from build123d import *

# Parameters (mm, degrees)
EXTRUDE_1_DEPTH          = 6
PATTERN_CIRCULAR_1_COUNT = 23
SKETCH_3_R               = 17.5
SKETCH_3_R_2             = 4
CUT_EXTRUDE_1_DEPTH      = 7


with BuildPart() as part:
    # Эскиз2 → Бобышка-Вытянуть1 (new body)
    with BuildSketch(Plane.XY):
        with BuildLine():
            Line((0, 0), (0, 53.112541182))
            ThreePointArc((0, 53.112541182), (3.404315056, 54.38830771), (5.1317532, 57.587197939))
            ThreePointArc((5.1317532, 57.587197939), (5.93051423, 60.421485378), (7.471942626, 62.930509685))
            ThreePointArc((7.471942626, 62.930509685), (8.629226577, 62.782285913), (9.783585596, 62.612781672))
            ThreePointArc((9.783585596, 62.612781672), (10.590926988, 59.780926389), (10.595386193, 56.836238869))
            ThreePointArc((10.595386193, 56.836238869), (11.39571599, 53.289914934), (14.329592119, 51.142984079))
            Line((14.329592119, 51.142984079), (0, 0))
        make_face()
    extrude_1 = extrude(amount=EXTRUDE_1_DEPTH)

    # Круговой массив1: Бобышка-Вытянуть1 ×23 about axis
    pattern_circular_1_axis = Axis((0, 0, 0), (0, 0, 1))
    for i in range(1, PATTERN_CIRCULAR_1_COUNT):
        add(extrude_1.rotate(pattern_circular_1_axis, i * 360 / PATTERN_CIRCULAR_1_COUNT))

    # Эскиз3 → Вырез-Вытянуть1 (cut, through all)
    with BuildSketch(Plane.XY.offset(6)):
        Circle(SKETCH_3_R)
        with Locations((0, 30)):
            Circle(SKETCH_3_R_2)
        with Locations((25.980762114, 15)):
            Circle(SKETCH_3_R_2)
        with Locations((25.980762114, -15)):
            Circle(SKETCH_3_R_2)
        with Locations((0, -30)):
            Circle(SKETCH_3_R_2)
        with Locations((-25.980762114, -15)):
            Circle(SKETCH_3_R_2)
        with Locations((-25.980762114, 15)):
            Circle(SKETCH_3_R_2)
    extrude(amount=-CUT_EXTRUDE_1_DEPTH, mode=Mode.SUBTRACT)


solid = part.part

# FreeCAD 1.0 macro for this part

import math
import FreeCAD as App
import Part
import Sketcher
from FreeCAD import Vector
Q = App.Units.Quantity

doc = App.newDocument("Part")
params = doc.addObject("Spreadsheet::Sheet", "Params")
for row, (alias, value) in enumerate([
    ("sketch1_radius", "5.18 mm"),
    ("pad1_length", "6 mm"),
    ("sketch2_diameter", "35 mm"),
    ("sketch2_diameter2", "8 mm"),
], start=1):
    params.set(f"A{row}", alias)
    params.set(f"B{row}", "=" + value)
    params.setAlias(f"B{row}", alias)

body = doc.addObject("PartDesign::Body", "Body")

sketch1 = body.newObject("Sketcher::SketchObject", "Sketch")
sketch1.AttachmentSupport = (doc.getObject("XY_Plane"), [""])
sketch1.MapMode = "FlatFace"
sketch1.addGeometry(Part.LineSegment(Vector(0, 53.1, 0), Vector(0, 0, 0)), False)
sketch1.addGeometry(Part.LineSegment(Vector(0, 0, 0), Vector(14.3, 51.1, 0)), False)
sketch1.addGeometry(Part.ArcOfCircle(Part.Circle(Vector(15.7, 56.1, 0), Vector(0, 0, 1), 5.2), math.radians(172), math.radians(254)), False)
sketch1.addGeometry(Part.ArcOfCircle(Part.Circle(Vector(0, 58.3, 0), Vector(0, 0, 1), 10.7), math.radians(-8), math.radians(24)), False)
sketch1.addGeometry(Part.ArcOfCircle(Part.Circle(Vector(0, 0, 0), Vector(0, 0, 1), 63.4), math.radians(81.12), math.radians(83.23)), False)
sketch1.addGeometry(Part.ArcOfCircle(Part.Circle(Vector(15.7, 56.1, 0), Vector(0, 0, 1), 10.7), math.radians(141), math.radians(172)), False)
sketch1.addGeometry(Part.ArcOfCircle(Part.Circle(Vector(0, 58.3, 0), Vector(0, 0, 1), 5.2), math.radians(-90), math.radians(-8)), False)
sketch1.addConstraint(Sketcher.Constraint("Coincident", 0, 2, 1, 1))
sketch1.addConstraint(Sketcher.Constraint("Coincident", 1, 2, 2, 2))
sketch1.addConstraint(Sketcher.Constraint("Tangent", 2, 1, 3, 1))
sketch1.addConstraint(Sketcher.Constraint("Coincident", 3, 2, 4, 1))
sketch1.addConstraint(Sketcher.Constraint("Coincident", 4, 2, 5, 1))
sketch1.addConstraint(Sketcher.Constraint("Tangent", 5, 2, 6, 2))
sketch1.addConstraint(Sketcher.Constraint("Coincident", 6, 1, 0, 1))
sketch1.addConstraint(Sketcher.Constraint("Vertical", 0))
sketch1.addConstraint(Sketcher.Constraint("Coincident", 4, 3, -1, 1))
sketch1.addConstraint(Sketcher.Constraint("Coincident", 0, 2, -1, 1))
sketch1.addConstraint(Sketcher.Constraint("Coincident", 5, 3, 2, 3))
sketch1.addConstraint(Sketcher.Constraint("Coincident", 6, 3, 3, 3))
sketch1.addConstraint(Sketcher.Constraint("Equal", 3, 5))
sketch1.addConstraint(Sketcher.Constraint("PointOnObject", 3, 3, -2))
sketch1.addConstraint(Sketcher.Constraint("Radius", 2, Q("5.18 mm")))
sketch1.addConstraint(Sketcher.Constraint("Radius", 3, Q("10.695 mm")))
sketch1.addConstraint(Sketcher.Constraint("Radius", 4, Q("63.372543 mm")))
sketch1.addConstraint(Sketcher.Constraint("DistanceY", 0, 2, 0, 1, Q("53.112541 mm")))
sketch1.addConstraint(Sketcher.Constraint("DistanceX", 3, 2, 2, 1, Q("0.811801 mm")))
sketch1.addConstraint(Sketcher.Constraint("DistanceY", 1, 2, 5, 3, Q("4.987912 mm")))
sketch1.setExpression("Constraints[14]", "Params.sketch1_radius")
pad1 = body.newObject("PartDesign::Pad", "Pad")
pad1.Profile = sketch1
pad1.setExpression("Length", "Params.pad1_length")
doc.recompute()

polarpattern = body.newObject("PartDesign::PolarPattern", "PolarPattern")
polarpattern.Originals = [pad1]
polarpattern.Axis = (doc.getObject("Z_Axis"), [""])
polarpattern.Angle = 360
polarpattern.Occurrences = 23
body.Tip = polarpattern

sketch2 = body.newObject("Sketcher::SketchObject", "Sketch001")
sketch2.AttachmentSupport = (doc.getObject("XY_Plane"), [""])
sketch2.MapMode = "FlatFace"
sketch2.AttachmentOffset = App.Placement(Vector(0, 0, 6), App.Rotation())
sketch2.addGeometry(Part.Circle(Vector(0, 0, 0), Vector(0, 0, 1), 17.5), False)
sketch2.addGeometry(Part.Circle(Vector(0, 30, 0), Vector(0, 0, 1), 4), False)
sketch2.addGeometry(Part.Circle(Vector(26, 15, 0), Vector(0, 0, 1), 4), False)
sketch2.addGeometry(Part.Circle(Vector(26, -15, 0), Vector(0, 0, 1), 4), False)
sketch2.addGeometry(Part.Circle(Vector(0, -30, 0), Vector(0, 0, 1), 4), False)
sketch2.addGeometry(Part.Circle(Vector(-26, -15, 0), Vector(0, 0, 1), 4), False)
sketch2.addGeometry(Part.Circle(Vector(-26, 15, 0), Vector(0, 0, 1), 4), False)
sketch2.addConstraint(Sketcher.Constraint("Coincident", 0, 3, -1, 1))
sketch2.addConstraint(Sketcher.Constraint("Equal", 1, 2))
sketch2.addConstraint(Sketcher.Constraint("Equal", 2, 3))
sketch2.addConstraint(Sketcher.Constraint("Equal", 3, 4))
sketch2.addConstraint(Sketcher.Constraint("Equal", 4, 5))
sketch2.addConstraint(Sketcher.Constraint("Equal", 5, 6))
sketch2.addConstraint(Sketcher.Constraint("Symmetric", 1, 3, 4, 3, -1, 1))
sketch2.addConstraint(Sketcher.Constraint("Symmetric", 2, 3, 5, 3, -1, 1))
sketch2.addConstraint(Sketcher.Constraint("Symmetric", 3, 3, 6, 3, -1, 1))
sketch2.addConstraint(Sketcher.Constraint("Symmetric", 3, 3, 5, 3, -2))
sketch2.addConstraint(Sketcher.Constraint("PointOnObject", 1, 3, -2))
sketch2.addConstraint(Sketcher.Constraint("Diameter", 0, Q("35 mm")))
sketch2.addConstraint(Sketcher.Constraint("Diameter", 1, Q("8 mm")))
sketch2.addConstraint(Sketcher.Constraint("DistanceY", -1, 1, 1, 3, Q("30 mm")))
sketch2.addConstraint(Sketcher.Constraint("DistanceY", -1, 1, 2, 3, Q("15 mm")))
sketch2.addConstraint(Sketcher.Constraint("DistanceX", -1, 1, 2, 3, Q("25.980762 mm")))
sketch2.setExpression("Constraints[11]", "Params.sketch2_diameter")
sketch2.setExpression("Constraints[12]", "Params.sketch2_diameter2")
pocket1 = body.newObject("PartDesign::Pocket", "Pocket")
pocket1.Profile = sketch2
pocket1.Type = "ThroughAll"

doc.recompute()
